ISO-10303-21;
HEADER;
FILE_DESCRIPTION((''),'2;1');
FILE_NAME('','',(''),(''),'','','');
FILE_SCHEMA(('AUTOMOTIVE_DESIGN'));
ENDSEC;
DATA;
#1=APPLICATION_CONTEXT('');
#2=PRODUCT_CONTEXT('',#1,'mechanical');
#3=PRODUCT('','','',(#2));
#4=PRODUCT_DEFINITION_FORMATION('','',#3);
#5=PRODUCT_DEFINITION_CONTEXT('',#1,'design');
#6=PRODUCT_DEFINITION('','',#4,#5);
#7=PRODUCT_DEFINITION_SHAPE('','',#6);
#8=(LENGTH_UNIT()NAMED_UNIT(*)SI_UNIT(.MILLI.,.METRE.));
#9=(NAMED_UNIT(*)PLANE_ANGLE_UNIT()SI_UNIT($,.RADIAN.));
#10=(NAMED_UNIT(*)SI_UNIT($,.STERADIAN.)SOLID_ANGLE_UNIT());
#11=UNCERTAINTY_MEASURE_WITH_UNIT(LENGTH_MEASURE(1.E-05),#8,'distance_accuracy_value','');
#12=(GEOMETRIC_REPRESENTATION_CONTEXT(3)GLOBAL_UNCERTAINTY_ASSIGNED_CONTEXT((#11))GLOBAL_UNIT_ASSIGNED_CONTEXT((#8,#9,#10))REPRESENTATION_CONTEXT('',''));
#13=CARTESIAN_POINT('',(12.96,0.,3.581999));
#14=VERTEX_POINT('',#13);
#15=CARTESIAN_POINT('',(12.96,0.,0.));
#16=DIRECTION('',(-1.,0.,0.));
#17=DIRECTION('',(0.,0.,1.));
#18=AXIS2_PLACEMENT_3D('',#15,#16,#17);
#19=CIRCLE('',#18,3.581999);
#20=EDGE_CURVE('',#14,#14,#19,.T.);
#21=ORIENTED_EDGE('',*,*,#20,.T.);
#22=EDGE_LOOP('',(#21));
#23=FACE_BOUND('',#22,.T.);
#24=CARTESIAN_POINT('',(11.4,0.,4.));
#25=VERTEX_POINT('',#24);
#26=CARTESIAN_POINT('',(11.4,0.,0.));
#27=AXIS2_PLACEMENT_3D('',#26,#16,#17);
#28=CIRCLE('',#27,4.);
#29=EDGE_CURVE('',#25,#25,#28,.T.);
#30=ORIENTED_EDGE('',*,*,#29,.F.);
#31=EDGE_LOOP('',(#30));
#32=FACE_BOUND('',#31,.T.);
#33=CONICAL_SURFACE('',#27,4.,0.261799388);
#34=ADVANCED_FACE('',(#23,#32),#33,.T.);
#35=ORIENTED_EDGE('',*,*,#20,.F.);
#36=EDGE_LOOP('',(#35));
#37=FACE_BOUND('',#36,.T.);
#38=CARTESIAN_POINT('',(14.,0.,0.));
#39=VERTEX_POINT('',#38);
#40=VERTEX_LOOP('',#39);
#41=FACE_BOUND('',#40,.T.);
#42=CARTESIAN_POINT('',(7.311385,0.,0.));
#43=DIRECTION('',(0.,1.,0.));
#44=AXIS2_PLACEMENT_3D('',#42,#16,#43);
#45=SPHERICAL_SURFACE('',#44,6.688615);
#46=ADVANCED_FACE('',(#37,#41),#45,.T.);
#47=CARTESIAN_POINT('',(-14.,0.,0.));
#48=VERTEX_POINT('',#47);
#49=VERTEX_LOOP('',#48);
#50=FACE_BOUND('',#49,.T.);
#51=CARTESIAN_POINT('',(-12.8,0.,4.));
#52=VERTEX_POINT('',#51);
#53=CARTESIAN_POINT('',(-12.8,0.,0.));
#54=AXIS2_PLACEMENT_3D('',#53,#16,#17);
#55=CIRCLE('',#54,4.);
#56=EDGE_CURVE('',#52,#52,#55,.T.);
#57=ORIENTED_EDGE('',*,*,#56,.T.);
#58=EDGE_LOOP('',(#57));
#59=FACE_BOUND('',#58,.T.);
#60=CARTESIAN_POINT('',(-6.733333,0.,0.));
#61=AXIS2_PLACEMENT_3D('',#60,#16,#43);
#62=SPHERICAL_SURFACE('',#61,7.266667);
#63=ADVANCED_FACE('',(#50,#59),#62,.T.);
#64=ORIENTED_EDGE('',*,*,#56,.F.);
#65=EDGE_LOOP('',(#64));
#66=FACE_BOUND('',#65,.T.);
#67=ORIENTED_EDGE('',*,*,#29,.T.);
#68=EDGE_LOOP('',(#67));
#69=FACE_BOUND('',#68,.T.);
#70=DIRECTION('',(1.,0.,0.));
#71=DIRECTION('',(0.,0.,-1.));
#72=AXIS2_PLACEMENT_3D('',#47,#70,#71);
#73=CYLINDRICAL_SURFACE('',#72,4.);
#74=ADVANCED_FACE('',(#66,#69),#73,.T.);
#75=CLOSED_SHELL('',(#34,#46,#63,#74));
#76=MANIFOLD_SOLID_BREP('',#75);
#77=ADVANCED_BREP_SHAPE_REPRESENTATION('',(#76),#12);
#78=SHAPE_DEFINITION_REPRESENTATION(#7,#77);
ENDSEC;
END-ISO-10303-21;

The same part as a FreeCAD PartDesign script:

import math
import FreeCAD as App
import Part
import Sketcher
Q = App.Units.Quantity

doc = App.newDocument("Part")
body = doc.addObject("PartDesign::Body", "Body")

# Sketch on YZ plane
sketch1 = body.newObject("Sketcher::SketchObject", "Sketch")
sketch1.AttachmentSupport = (doc.getObject("YZ_Plane"), [""])
sketch1.MapMode = "FlatFace"
sketch1.addGeometry(Part.Circle(App.Vector(0, 0, 0), App.Vector(0, 0, 1), 4), False)
sketch1.addConstraint([
    Sketcher.Constraint("Coincident", 0, 3, -1, 1),
    Sketcher.Constraint("Diameter", 0, Q("8 mm")),
])
pad1 = body.newObject("PartDesign::Pad", "Pad")
pad1.Profile = sketch1
pad1.Type = "TwoLengths"
pad1.Length = 14
pad1.Length2 = 14

# Sketch on XY plane
sketch2 = body.newObject("Sketcher::SketchObject", "Sketch001")
sketch2.AttachmentSupport = (doc.getObject("XY_Plane"), [""])
sketch2.MapMode = "FlatFace"
sketch2.addGeometry([
    Part.LineSegment(App.Vector(11.4, 4.5, 0), App.Vector(11.4, 4, 0)),  # 0
    Part.LineSegment(App.Vector(11.4, 4, 0), App.Vector(13, 3.6, 0)),  # 1
    Part.ArcOfCircle(Part.Circle(App.Vector(7.3, 0, 0), App.Vector(0, 0, 1), 6.7), math.radians(0), math.radians(32)),  # 2
    Part.LineSegment(App.Vector(14, 0, 0), App.Vector(14.5, 0, 0)),  # 3
    Part.LineSegment(App.Vector(14.5, 0, 0), App.Vector(14.5, 4.5, 0)),  # 4
    Part.LineSegment(App.Vector(14.5, 4.5, 0), App.Vector(11.4, 4.5, 0)),  # 5
    Part.LineSegment(App.Vector(-12.8, 4, 0), App.Vector(-12.8, 4.5, 0)),  # 6
    Part.LineSegment(App.Vector(-12.8, 4.5, 0), App.Vector(-14.5, 4.5, 0)),  # 7
    Part.LineSegment(App.Vector(-14.5, 4.5, 0), App.Vector(-14.5, 0, 0)),  # 8
    Part.LineSegment(App.Vector(-14.5, 0, 0), App.Vector(-14, 0, 0)),  # 9
    Part.ArcOfCircle(Part.Circle(App.Vector(-6.7, 0, 0), App.Vector(0, 0, 1), 7.3), math.radians(147), math.radians(180)),  # 10
], False)
sketch2.addConstraint([
    Sketcher.Constraint("Coincident", 0, 2, 1, 1),
    Sketcher.Constraint("Coincident", 1, 2, 2, 2),
    Sketcher.Constraint("Coincident", 2, 1, 3, 1),
    Sketcher.Constraint("Coincident", 3, 2, 4, 1),
    Sketcher.Constraint("Coincident", 4, 2, 5, 1),
    Sketcher.Constraint("Coincident", 5, 2, 0, 1),
    Sketcher.Constraint("Coincident", 6, 2, 7, 1),
    Sketcher.Constraint("Coincident", 7, 2, 8, 1),
    Sketcher.Constraint("Coincident", 8, 2, 9, 1),
    Sketcher.Constraint("Coincident", 9, 2, 10, 2),
    Sketcher.Constraint("Coincident", 10, 1, 6, 1),
    Sketcher.Constraint("Vertical", 0),
    Sketcher.Constraint("Horizontal", 3),
    Sketcher.Constraint("Vertical", 4),
    Sketcher.Constraint("Horizontal", 5),
    Sketcher.Constraint("Vertical", 6),
    Sketcher.Constraint("Horizontal", 7),
    Sketcher.Constraint("Vertical", 8),
    Sketcher.Constraint("Horizontal", 9),
    Sketcher.Constraint("Symmetric", 3, 2, 8, 2, -1, 1),
    Sketcher.Constraint("Symmetric", 2, 1, 9, 2, -2),
    Sketcher.Constraint("PointOnObject", 2, 3, -1),
    Sketcher.Constraint("PointOnObject", 10, 3, -1),
    Sketcher.Constraint("Horizontal", 5, 2, 6, 2),
    Sketcher.Constraint("Horizontal", 0, 2, 10, 1),
    Sketcher.Constraint("Equal", 9, 0),
    Sketcher.Constraint("Angle", 1, Q("-15 deg")),
    Sketcher.Constraint("DistanceX", 3, 1, 3, 2, Q("0.5 mm")),
    Sketcher.Constraint("DistanceX", 5, 2, 5, 1, Q("3.1 mm")),
    Sketcher.Constraint("DistanceX", 7, 2, 7, 1, Q("1.7 mm")),
    Sketcher.Constraint("DistanceY", 4, 1, 4, 2, Q("4.5 mm")),
    Sketcher.Constraint("DistanceX", -1, 1, 2, 1, Q("14 mm")),
    Sketcher.Constraint("DistanceX", -1, 1, 1, 2, Q("12.96 mm")),
])
groove = body.newObject("PartDesign::Groove", "Groove")
groove.Profile = sketch2
groove.ReferenceAxis = (sketch2, ["H_Axis"])
groove.Angle = 360

doc.recompute()
